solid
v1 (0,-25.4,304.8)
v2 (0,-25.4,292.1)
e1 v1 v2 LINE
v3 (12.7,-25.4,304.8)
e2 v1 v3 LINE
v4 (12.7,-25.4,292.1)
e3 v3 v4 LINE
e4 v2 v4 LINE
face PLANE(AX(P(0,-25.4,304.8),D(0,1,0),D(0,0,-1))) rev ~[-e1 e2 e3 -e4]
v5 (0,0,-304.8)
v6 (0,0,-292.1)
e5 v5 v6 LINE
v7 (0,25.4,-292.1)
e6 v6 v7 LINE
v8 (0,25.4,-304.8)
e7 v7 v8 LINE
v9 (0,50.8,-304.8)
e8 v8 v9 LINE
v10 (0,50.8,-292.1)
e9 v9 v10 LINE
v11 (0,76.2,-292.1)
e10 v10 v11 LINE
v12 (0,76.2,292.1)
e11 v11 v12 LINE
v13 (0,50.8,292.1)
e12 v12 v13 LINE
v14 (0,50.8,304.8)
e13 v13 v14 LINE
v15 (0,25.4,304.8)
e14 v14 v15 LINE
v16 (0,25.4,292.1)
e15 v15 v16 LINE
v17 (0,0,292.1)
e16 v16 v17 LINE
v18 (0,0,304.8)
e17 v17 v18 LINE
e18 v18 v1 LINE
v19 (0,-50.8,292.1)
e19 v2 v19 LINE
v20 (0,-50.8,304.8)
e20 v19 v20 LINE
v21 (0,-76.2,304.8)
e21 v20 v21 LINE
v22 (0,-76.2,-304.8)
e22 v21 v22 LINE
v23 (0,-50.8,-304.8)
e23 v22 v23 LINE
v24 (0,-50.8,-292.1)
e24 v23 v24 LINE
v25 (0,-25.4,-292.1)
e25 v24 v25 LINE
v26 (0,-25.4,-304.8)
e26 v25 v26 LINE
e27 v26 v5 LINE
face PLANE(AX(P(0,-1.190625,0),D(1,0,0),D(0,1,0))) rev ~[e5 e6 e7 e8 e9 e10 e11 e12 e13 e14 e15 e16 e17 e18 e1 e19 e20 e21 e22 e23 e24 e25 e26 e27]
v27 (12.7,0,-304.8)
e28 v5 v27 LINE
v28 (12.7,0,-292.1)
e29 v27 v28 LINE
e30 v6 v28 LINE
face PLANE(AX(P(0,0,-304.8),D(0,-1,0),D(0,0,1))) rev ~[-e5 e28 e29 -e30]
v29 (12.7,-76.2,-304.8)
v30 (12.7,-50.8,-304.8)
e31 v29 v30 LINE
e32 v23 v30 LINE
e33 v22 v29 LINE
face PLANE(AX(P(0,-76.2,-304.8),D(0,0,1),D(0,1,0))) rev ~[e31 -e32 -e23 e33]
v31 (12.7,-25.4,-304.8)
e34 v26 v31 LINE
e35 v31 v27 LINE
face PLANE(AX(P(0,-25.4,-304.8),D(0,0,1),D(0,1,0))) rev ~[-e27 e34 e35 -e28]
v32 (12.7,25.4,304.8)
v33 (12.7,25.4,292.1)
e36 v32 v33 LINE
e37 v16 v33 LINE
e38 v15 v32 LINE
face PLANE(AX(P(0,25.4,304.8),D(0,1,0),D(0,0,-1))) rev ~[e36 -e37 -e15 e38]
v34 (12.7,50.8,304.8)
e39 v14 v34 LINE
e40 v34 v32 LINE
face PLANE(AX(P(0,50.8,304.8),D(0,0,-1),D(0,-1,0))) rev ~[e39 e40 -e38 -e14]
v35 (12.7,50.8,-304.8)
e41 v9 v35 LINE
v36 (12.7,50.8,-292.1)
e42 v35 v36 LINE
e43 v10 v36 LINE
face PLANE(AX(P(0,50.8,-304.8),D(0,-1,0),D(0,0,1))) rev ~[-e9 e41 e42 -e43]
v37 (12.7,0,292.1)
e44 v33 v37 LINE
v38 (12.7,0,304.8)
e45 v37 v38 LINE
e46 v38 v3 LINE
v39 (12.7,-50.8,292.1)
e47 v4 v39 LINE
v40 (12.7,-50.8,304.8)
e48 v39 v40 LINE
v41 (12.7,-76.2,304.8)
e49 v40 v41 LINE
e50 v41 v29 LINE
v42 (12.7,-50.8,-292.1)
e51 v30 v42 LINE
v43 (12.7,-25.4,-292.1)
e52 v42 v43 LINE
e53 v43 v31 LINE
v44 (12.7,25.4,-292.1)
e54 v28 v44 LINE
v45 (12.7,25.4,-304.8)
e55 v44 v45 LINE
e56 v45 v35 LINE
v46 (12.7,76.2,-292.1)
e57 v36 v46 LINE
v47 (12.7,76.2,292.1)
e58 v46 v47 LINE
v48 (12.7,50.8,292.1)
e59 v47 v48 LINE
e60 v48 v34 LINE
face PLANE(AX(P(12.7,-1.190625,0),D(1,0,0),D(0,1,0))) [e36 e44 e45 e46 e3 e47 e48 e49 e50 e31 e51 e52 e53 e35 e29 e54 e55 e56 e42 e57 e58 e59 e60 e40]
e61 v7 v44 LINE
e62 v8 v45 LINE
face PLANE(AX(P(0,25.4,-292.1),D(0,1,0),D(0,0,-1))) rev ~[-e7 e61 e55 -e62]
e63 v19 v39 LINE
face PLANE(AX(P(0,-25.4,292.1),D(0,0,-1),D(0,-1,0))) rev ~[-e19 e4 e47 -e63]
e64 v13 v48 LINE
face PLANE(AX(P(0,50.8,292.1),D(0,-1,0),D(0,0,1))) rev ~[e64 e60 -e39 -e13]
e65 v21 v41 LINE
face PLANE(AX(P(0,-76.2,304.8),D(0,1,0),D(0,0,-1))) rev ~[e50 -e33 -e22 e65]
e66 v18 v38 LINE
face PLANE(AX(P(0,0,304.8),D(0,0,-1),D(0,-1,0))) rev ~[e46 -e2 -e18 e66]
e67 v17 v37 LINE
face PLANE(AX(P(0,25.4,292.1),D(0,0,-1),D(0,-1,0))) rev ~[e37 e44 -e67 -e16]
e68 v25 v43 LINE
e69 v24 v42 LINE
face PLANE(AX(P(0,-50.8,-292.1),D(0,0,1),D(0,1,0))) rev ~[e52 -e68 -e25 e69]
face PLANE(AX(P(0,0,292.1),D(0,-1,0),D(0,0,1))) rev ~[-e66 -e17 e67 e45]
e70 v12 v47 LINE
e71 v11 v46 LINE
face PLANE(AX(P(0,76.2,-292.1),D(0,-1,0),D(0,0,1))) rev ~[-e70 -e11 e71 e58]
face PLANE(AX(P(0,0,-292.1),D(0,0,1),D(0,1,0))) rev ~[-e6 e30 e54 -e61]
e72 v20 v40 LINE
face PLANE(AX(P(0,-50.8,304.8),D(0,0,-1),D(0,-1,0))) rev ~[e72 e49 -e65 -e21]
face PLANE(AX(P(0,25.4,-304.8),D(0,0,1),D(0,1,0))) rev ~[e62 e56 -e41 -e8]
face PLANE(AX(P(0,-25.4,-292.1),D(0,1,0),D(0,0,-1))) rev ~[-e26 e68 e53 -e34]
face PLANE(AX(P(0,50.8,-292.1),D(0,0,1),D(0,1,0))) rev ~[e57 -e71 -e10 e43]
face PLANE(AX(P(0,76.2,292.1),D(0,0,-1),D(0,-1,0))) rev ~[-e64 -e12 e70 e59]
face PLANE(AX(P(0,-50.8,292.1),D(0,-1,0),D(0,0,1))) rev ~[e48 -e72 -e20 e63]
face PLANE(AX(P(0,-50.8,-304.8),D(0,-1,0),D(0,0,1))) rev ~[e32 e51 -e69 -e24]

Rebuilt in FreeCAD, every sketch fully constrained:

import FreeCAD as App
import Part
import Sketcher
from FreeCAD import Vector
Q = App.Units.Quantity


def add_polygon(sketch, points):
    """Adds a closed chain of lines whose ends are joined by coincident constraints."""
    first, n = sketch.GeometryCount, len(points)
    for a, b in zip(points, points[1:] + points[:1]):
        sketch.addGeometry(Part.LineSegment(App.Vector(*a, 0), App.Vector(*b, 0)), False)
    for i in range(n):
        sketch.addConstraint(Sketcher.Constraint("Coincident", first + i, 2, first + (i + 1) % n, 1))

doc = App.newDocument("Part")
params = doc.addObject("Spreadsheet::Sheet", "Params")
for row, (alias, value) in enumerate([
    ("sketch1_width", "1 in"),
    ("sketch1_height", "24 in"),
    ("sketch1_height2", "23 in"),
    ("pad1_length", "0.5 in"),
], start=1):
    params.set(f"A{row}", alias)
    params.set(f"B{row}", "=" + value)
    params.setAlias(f"B{row}", alias)

body = doc.addObject("PartDesign::Body", "Body")

# Sketch on YZ plane
sketch1 = doc.addObject("Sketcher::SketchObject", "Sketch")
body.addObject(sketch1)
sketch1.AttachmentSupport = (doc.YZ_Plane, [""])
sketch1.MapMode = "FlatFace"
add_polygon(sketch1, [(51, 292), (51, 305), (25, 305), (25, 292), (0, 292), (0, 305), (-25, 305), (-25, 292), (-51, 292), (-51, 305), (-76, 305), (-76, -305), (-51, -305), (-51, -292), (-25, -292), (-25, -305), (0, -305), (0, -292), (25, -292), (25, -305), (51, -305), (51, -292), (76, -292), (76, 292)])  # lines 0-23
sketch1.addConstraint([
    Sketcher.Constraint("Vertical", 0),
    Sketcher.Constraint("Horizontal", 1),
    Sketcher.Constraint("Vertical", 2),
    Sketcher.Constraint("Horizontal", 3),
    Sketcher.Constraint("Vertical", 4),
    Sketcher.Constraint("Horizontal", 5),
    Sketcher.Constraint("Vertical", 6),
    Sketcher.Constraint("Horizontal", 7),
    Sketcher.Constraint("Vertical", 8),
    Sketcher.Constraint("Horizontal", 9),
    Sketcher.Constraint("Vertical", 10),
    Sketcher.Constraint("Horizontal", 11),
    Sketcher.Constraint("Vertical", 12),
    Sketcher.Constraint("Horizontal", 13),
    Sketcher.Constraint("Vertical", 14),
    Sketcher.Constraint("Horizontal", 15),
    Sketcher.Constraint("Vertical", 16),
    Sketcher.Constraint("Horizontal", 17),
    Sketcher.Constraint("Vertical", 18),
    Sketcher.Constraint("Horizontal", 19),
    Sketcher.Constraint("Vertical", 20),
    Sketcher.Constraint("Horizontal", 21),
    Sketcher.Constraint("Vertical", 22),
    Sketcher.Constraint("Horizontal", 23),
    Sketcher.Constraint("Symmetric", 0, 2, 11, 2, -1, 1),
    Sketcher.Constraint("Symmetric", 2, 2, 13, 2, -1, 1),
    Sketcher.Constraint("Symmetric", 4, 2, 15, 2, -1, 1),
    Sketcher.Constraint("Symmetric", 6, 2, 17, 2, -1, 1),
    Sketcher.Constraint("Symmetric", 8, 2, 19, 2, -1, 1),
    Sketcher.Constraint("Symmetric", 1, 2, 5, 2, -2),
    Sketcher.Constraint("Symmetric", 0, 2, 8, 2, -2),
    Sketcher.Constraint("Symmetric", 3, 2, 16, 2, -1),
    Sketcher.Constraint("Horizontal", 17, 2, 20, 2),
    Sketcher.Constraint("Horizontal", 7, 2, 22, 2),
    Sketcher.Constraint("Equal", 1, 3),
    Sketcher.Constraint("Equal", 7, 9),
    Sketcher.Constraint("Equal", 19, 21),
    Sketcher.Constraint("DistanceX", 1, 2, 1, 1, Q("1 in")),
    Sketcher.Constraint("DistanceY", 10, 2, 10, 1, Q("24 in")),
    Sketcher.Constraint("DistanceY", 22, 1, 22, 2, Q("23 in")),
])
sketch1.setExpression("Constraints[61]", "Params.sketch1_width")
sketch1.setExpression("Constraints[62]", "Params.sketch1_height")
sketch1.setExpression("Constraints[63]", "Params.sketch1_height2")
pad1 = doc.addObject("PartDesign::Pad", "Pad")
body.addObject(pad1)
pad1.Profile = sketch1
pad1.setExpression("Length", "Params.pad1_length")

doc.recompute()
